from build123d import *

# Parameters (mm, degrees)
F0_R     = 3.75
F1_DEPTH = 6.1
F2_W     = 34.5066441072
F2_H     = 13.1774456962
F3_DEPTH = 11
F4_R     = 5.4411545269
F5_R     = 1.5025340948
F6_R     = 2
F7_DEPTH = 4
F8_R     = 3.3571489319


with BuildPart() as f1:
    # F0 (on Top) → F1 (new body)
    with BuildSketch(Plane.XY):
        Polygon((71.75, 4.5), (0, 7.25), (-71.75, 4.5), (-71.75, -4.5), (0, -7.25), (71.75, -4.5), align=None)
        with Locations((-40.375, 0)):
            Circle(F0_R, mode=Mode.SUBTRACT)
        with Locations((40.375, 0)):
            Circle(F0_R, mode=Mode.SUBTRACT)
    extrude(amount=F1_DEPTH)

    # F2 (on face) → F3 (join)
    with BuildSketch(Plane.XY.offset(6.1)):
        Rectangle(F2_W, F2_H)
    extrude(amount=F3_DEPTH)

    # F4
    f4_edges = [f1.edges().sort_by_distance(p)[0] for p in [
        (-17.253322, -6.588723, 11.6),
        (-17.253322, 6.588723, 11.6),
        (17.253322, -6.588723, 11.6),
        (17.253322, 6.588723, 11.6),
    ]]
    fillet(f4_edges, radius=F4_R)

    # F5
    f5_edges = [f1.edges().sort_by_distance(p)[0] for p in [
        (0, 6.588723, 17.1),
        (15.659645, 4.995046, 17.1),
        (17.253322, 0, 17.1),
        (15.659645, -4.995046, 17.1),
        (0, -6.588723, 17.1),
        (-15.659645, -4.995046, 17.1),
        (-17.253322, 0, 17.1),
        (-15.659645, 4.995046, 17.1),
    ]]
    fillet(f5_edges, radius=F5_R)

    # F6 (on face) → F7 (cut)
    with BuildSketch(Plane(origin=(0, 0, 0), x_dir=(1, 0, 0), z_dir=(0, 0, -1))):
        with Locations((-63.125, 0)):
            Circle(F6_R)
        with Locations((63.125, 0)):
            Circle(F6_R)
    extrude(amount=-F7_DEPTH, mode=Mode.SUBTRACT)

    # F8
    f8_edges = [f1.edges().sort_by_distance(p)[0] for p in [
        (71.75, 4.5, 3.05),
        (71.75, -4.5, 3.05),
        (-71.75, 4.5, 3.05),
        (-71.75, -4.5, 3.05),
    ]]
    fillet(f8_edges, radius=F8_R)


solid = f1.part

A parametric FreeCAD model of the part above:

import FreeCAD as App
import Part
import Sketcher
from FreeCAD import Vector


def edges_at(feature, points):
    """Names of the edges that pass closest to the given points."""
    edges = feature.Shape.Edges
    near = lambda p: min(range(len(edges)), key=lambda i: edges[i].distToShape(Part.Vertex(*p))[0])
    return sorted({f"Edge{near(p) + 1}" for p in points})

doc = App.newDocument("Part")
body = doc.addObject("PartDesign::Body", "Body")

# Sketch on XY plane
sketch1 = body.newObject("Sketcher::SketchObject", "Sketch")
sketch1.AttachmentSupport = (doc.getObject("XY_Plane"), [""])
sketch1.MapMode = "FlatFace"
sketch1.addGeometry(Part.LineSegment(Vector(71.8, 4.5, 0), Vector(0, 7.2, 0)), False)
sketch1.addGeometry(Part.LineSegment(Vector(0, 7.2, 0), Vector(-71.8, 4.5, 0)), False)
sketch1.addGeometry(Part.LineSegment(Vector(-71.8, 4.5, 0), Vector(-71.8, -4.5, 0)), False)
sketch1.addGeometry(Part.LineSegment(Vector(-71.8, -4.5, 0), Vector(0, -7.2, 0)), False)
sketch1.addGeometry(Part.LineSegment(Vector(0, -7.2, 0), Vector(71.8, -4.5, 0)), False)
sketch1.addGeometry(Part.LineSegment(Vector(71.8, -4.5, 0), Vector(71.8, 4.5, 0)), False)
sketch1.addGeometry(Part.Circle(Vector(-40.4, 0, 0), Vector(0, 0, 1), 3.8), False)
sketch1.addGeometry(Part.Circle(Vector(40.4, 0, 0), Vector(0, 0, 1), 3.8), False)
sketch1.addConstraint(Sketcher.Constraint("Coincident", 0, 2, 1, 1))
sketch1.addConstraint(Sketcher.Constraint("Coincident", 1, 2, 2, 1))
sketch1.addConstraint(Sketcher.Constraint("Coincident", 2, 2, 3, 1))
sketch1.addConstraint(Sketcher.Constraint("Coincident", 3, 2, 4, 1))
sketch1.addConstraint(Sketcher.Constraint("Coincident", 4, 2, 5, 1))
sketch1.addConstraint(Sketcher.Constraint("Coincident", 5, 2, 0, 1))
sketch1.addConstraint(Sketcher.Constraint("Vertical", 2))
sketch1.addConstraint(Sketcher.Constraint("Vertical", 5))
sketch1.addConstraint(Sketcher.Constraint("Equal", 6, 7))
sketch1.addConstraint(Sketcher.Constraint("Symmetric", 6, 3, 7, 3, -1, 1))
sketch1.addConstraint(Sketcher.Constraint("Symmetric", 0, 2, 3, 2, -1, 1))
sketch1.addConstraint(Sketcher.Constraint("Symmetric", 1, 2, 4, 2, -1, 1))
sketch1.addConstraint(Sketcher.Constraint("PointOnObject", 6, 3, -1))
sketch1.addConstraint(Sketcher.Constraint("PointOnObject", 0, 2, -2))
sketch1.addConstraint(Sketcher.Constraint("Parallel", 0, 3))
sketch1.addConstraint(Sketcher.Constraint("Horizontal", 2, 2, 4, 2))
sketch1.addConstraint(Sketcher.Constraint("Diameter", 6, 7.5))
sketch1.addConstraint(Sketcher.Constraint("DistanceY", 2, 2, 2, 1, 9.0))
sketch1.addConstraint(Sketcher.Constraint("DistanceY", 3, 2, 0, 2, 14.5))
sketch1.addConstraint(Sketcher.Constraint("DistanceX", 2, 2, 4, 2, 143.5))
sketch1.addConstraint(Sketcher.Constraint("DistanceX", 6, 3, 7, 3, 80.75))
pad1 = body.newObject("PartDesign::Pad", "Pad")
pad1.Profile = sketch1
pad1.Length = 6.1

# Sketch on XY plane
sketch2 = body.newObject("Sketcher::SketchObject", "Sketch001")
sketch2.AttachmentSupport = (doc.getObject("XY_Plane"), [""])
sketch2.MapMode = "FlatFace"
sketch2.AttachmentOffset = App.Placement(Vector(0, 0, 6.1), App.Rotation())
sketch2.addGeometry(Part.LineSegment(Vector(-17, 7, 0), Vector(-17, -7, 0)), False)
sketch2.addGeometry(Part.LineSegment(Vector(-17, -7, 0), Vector(17, -7, 0)), False)
sketch2.addGeometry(Part.LineSegment(Vector(17, -7, 0), Vector(17, 7, 0)), False)
sketch2.addGeometry(Part.LineSegment(Vector(17, 7, 0), Vector(-17, 7, 0)), False)
sketch2.addConstraint(Sketcher.Constraint("Coincident", 0, 2, 1, 1))
sketch2.addConstraint(Sketcher.Constraint("Coincident", 1, 2, 2, 1))
sketch2.addConstraint(Sketcher.Constraint("Coincident", 2, 2, 3, 1))
sketch2.addConstraint(Sketcher.Constraint("Coincident", 3, 2, 0, 1))
sketch2.addConstraint(Sketcher.Constraint("Vertical", 0))
sketch2.addConstraint(Sketcher.Constraint("Horizontal", 1))
sketch2.addConstraint(Sketcher.Constraint("Vertical", 2))
sketch2.addConstraint(Sketcher.Constraint("Horizontal", 3))
sketch2.addConstraint(Sketcher.Constraint("Symmetric", 0, 2, 2, 2, -1, 1))
sketch2.addConstraint(Sketcher.Constraint("DistanceX", 1, 1, 1, 2, 34.506644))
sketch2.addConstraint(Sketcher.Constraint("DistanceY", 0, 2, 0, 1, 13.177446))
pad2 = body.newObject("PartDesign::Pad", "Pad001")
pad2.Profile = sketch2
pad2.Length = 11
doc.recompute()

fillet = body.newObject("PartDesign::Fillet", "Fillet")
fillet.Base = (pad2, edges_at(pad2, [
    (-17.253, -6.589, 11.6),
    (-17.253, 6.589, 11.6),
    (17.253, -6.589, 11.6),
    (17.253, 6.589, 11.6),
]))
fillet.Radius = 5.441155
doc.recompute()

fillet2 = body.newObject("PartDesign::Fillet", "Fillet001")
fillet2.Base = (fillet, edges_at(fillet, [
    (0, 6.589, 17.1),
    (15.66, 4.995, 17.1),
    (17.253, 0, 17.1),
    (15.66, -4.995, 17.1),
    (0, -6.589, 17.1),
    (-15.66, -4.995, 17.1),
    (-17.253, 0, 17.1),
    (-15.66, 4.995, 17.1),
]))
fillet2.Radius = 1.502534

# Sketch on XY plane
sketch3 = body.newObject("Sketcher::SketchObject", "Sketch002")
sketch3.AttachmentSupport = (doc.getObject("XY_Plane"), [""])
sketch3.MapMode = "FlatFace"
sketch3.addGeometry(Part.Circle(Vector(-63.1, 0, 0), Vector(0, 0, 1), 2), False)
sketch3.addGeometry(Part.Circle(Vector(63.1, 0, 0), Vector(0, 0, 1), 2), False)
sketch3.addConstraint(Sketcher.Constraint("Equal", 0, 1))
sketch3.addConstraint(Sketcher.Constraint("Symmetric", 0, 3, 1, 3, -1, 1))
sketch3.addConstraint(Sketcher.Constraint("PointOnObject", 0, 3, -1))
sketch3.addConstraint(Sketcher.Constraint("Diameter", 0, 4.0))
sketch3.addConstraint(Sketcher.Constraint("DistanceX", 0, 3, 1, 3, 126.25))
pocket1 = body.newObject("PartDesign::Pocket", "Pocket")
pocket1.Profile = sketch3
pocket1.Length = 4
pocket1.Reversed = True
doc.recompute()

fillet3 = body.newObject("PartDesign::Fillet", "Fillet002")
fillet3.Base = (pocket1, edges_at(pocket1, [
    (71.75, 4.5, 3.05),
    (71.75, -4.5, 3.05),
    (-71.75, 4.5, 3.05),
    (-71.75, -4.5, 3.05),
]))
fillet3.Radius = 3.357149

doc.recompute()
